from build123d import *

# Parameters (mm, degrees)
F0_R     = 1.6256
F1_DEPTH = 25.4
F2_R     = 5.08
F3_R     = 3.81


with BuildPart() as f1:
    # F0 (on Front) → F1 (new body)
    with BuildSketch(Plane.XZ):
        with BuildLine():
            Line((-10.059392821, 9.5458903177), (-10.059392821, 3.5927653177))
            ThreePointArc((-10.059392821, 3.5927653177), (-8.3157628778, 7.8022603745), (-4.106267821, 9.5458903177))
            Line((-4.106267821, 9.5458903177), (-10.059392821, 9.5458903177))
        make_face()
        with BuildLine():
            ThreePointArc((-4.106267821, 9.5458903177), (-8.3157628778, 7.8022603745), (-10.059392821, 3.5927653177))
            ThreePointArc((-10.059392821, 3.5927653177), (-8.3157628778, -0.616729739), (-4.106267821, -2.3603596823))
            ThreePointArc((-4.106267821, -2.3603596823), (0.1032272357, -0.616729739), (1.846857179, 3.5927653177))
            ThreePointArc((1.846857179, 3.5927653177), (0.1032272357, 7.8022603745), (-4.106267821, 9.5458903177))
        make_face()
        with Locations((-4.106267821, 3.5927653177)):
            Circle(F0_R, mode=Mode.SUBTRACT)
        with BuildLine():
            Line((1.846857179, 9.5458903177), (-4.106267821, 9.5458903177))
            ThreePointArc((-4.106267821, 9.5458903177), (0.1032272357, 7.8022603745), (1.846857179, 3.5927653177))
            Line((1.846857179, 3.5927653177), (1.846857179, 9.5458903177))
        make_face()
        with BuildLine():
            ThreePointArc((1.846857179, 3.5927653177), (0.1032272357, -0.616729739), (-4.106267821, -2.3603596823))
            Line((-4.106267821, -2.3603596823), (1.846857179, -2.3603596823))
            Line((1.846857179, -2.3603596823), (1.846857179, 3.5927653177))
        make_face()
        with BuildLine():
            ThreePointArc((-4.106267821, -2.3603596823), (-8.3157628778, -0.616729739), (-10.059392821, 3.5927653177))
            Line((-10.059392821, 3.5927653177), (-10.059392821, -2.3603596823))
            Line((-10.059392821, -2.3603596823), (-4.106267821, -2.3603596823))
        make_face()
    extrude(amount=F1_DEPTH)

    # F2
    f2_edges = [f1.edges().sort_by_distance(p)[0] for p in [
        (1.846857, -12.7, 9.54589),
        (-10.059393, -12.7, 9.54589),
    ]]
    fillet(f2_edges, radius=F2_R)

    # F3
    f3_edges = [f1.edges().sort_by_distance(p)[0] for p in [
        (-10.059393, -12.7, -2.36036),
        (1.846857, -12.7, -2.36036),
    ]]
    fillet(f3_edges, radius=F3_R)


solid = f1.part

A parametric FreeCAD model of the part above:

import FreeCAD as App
import Part
import Sketcher

V = App.Vector
Q = App.Units.Quantity


def edges_at(feature, points):
    """Names of the edges that pass closest to the given points."""
    edges = feature.Shape.Edges
    near = lambda p: min(range(len(edges)), key=lambda i: edges[i].distToShape(Part.Vertex(*p))[0])
    return sorted({f"Edge{near(p) + 1}" for p in points})

doc = App.newDocument("Part")
body = doc.addObject("PartDesign::Body", "Body")

sketch1 = body.newObject("Sketcher::SketchObject", "Sketch")
sketch1.AttachmentSupport = (doc.getObject("XZ_Plane"), [""])
sketch1.MapMode = "FlatFace"
sketch1.addGeometry(Part.LineSegment(V(-10.1, 9.5, 0), V(-10.1, -2.4, 0)), False)
sketch1.addGeometry(Part.LineSegment(V(-10.1, -2.4, 0), V(1.8, -2.4, 0)), False)
sketch1.addGeometry(Part.LineSegment(V(1.8, -2.4, 0), V(1.8, 9.5, 0)), False)
sketch1.addGeometry(Part.LineSegment(V(1.8, 9.5, 0), V(-10.1, 9.5, 0)), False)
sketch1.addGeometry(Part.Circle(V(-4.1, 3.6, 0), V(0, 0, 1), 1.6), False)
sketch1.addConstraint(Sketcher.Constraint("Coincident", 0, 2, 1, 1))
sketch1.addConstraint(Sketcher.Constraint("Coincident", 1, 2, 2, 1))
sketch1.addConstraint(Sketcher.Constraint("Coincident", 2, 2, 3, 1))
sketch1.addConstraint(Sketcher.Constraint("Coincident", 3, 2, 0, 1))
sketch1.addConstraint(Sketcher.Constraint("Vertical", 0))
sketch1.addConstraint(Sketcher.Constraint("Horizontal", 1))
sketch1.addConstraint(Sketcher.Constraint("Vertical", 2))
sketch1.addConstraint(Sketcher.Constraint("Horizontal", 3))
sketch1.addConstraint(Sketcher.Constraint("Equal", 3, 0))
sketch1.addConstraint(Sketcher.Constraint("Diameter", 4, Q("0.128 in")))
sketch1.addConstraint(Sketcher.Constraint("DistanceX", 1, 1, 1, 2, Q("0.46875 in")))
sketch1.addConstraint(Sketcher.Constraint("DistanceX", 0, 2, 4, 3, Q("0.234375 in")))
sketch1.addConstraint(Sketcher.Constraint("DistanceY", 0, 2, 4, 3, Q("0.234375 in")))
sketch1.addConstraint(Sketcher.Constraint("DistanceY", 0, 2, -1, 1, 2.36036))
sketch1.addConstraint(Sketcher.Constraint("DistanceX", 4, 3, -1, 1, 4.106268))
pad1 = body.newObject("PartDesign::Pad", "Pad")
pad1.Profile = sketch1
pad1.Length = Q("1 in")
doc.recompute()

fillet = body.newObject("PartDesign::Fillet", "Fillet")
fillet.Base = (pad1, edges_at(pad1, [(1.847, -12.7, 9.546), (-10.059, -12.7, 9.546)]))
fillet.Radius = Q("0.2 in")
doc.recompute()

fillet2 = body.newObject("PartDesign::Fillet", "Fillet001")
fillet2.Base = (fillet, edges_at(fillet, [(-10.059, -12.7, -2.36), (1.847, -12.7, -2.36)]))
fillet2.Radius = Q("0.15 in")

doc.recompute()
